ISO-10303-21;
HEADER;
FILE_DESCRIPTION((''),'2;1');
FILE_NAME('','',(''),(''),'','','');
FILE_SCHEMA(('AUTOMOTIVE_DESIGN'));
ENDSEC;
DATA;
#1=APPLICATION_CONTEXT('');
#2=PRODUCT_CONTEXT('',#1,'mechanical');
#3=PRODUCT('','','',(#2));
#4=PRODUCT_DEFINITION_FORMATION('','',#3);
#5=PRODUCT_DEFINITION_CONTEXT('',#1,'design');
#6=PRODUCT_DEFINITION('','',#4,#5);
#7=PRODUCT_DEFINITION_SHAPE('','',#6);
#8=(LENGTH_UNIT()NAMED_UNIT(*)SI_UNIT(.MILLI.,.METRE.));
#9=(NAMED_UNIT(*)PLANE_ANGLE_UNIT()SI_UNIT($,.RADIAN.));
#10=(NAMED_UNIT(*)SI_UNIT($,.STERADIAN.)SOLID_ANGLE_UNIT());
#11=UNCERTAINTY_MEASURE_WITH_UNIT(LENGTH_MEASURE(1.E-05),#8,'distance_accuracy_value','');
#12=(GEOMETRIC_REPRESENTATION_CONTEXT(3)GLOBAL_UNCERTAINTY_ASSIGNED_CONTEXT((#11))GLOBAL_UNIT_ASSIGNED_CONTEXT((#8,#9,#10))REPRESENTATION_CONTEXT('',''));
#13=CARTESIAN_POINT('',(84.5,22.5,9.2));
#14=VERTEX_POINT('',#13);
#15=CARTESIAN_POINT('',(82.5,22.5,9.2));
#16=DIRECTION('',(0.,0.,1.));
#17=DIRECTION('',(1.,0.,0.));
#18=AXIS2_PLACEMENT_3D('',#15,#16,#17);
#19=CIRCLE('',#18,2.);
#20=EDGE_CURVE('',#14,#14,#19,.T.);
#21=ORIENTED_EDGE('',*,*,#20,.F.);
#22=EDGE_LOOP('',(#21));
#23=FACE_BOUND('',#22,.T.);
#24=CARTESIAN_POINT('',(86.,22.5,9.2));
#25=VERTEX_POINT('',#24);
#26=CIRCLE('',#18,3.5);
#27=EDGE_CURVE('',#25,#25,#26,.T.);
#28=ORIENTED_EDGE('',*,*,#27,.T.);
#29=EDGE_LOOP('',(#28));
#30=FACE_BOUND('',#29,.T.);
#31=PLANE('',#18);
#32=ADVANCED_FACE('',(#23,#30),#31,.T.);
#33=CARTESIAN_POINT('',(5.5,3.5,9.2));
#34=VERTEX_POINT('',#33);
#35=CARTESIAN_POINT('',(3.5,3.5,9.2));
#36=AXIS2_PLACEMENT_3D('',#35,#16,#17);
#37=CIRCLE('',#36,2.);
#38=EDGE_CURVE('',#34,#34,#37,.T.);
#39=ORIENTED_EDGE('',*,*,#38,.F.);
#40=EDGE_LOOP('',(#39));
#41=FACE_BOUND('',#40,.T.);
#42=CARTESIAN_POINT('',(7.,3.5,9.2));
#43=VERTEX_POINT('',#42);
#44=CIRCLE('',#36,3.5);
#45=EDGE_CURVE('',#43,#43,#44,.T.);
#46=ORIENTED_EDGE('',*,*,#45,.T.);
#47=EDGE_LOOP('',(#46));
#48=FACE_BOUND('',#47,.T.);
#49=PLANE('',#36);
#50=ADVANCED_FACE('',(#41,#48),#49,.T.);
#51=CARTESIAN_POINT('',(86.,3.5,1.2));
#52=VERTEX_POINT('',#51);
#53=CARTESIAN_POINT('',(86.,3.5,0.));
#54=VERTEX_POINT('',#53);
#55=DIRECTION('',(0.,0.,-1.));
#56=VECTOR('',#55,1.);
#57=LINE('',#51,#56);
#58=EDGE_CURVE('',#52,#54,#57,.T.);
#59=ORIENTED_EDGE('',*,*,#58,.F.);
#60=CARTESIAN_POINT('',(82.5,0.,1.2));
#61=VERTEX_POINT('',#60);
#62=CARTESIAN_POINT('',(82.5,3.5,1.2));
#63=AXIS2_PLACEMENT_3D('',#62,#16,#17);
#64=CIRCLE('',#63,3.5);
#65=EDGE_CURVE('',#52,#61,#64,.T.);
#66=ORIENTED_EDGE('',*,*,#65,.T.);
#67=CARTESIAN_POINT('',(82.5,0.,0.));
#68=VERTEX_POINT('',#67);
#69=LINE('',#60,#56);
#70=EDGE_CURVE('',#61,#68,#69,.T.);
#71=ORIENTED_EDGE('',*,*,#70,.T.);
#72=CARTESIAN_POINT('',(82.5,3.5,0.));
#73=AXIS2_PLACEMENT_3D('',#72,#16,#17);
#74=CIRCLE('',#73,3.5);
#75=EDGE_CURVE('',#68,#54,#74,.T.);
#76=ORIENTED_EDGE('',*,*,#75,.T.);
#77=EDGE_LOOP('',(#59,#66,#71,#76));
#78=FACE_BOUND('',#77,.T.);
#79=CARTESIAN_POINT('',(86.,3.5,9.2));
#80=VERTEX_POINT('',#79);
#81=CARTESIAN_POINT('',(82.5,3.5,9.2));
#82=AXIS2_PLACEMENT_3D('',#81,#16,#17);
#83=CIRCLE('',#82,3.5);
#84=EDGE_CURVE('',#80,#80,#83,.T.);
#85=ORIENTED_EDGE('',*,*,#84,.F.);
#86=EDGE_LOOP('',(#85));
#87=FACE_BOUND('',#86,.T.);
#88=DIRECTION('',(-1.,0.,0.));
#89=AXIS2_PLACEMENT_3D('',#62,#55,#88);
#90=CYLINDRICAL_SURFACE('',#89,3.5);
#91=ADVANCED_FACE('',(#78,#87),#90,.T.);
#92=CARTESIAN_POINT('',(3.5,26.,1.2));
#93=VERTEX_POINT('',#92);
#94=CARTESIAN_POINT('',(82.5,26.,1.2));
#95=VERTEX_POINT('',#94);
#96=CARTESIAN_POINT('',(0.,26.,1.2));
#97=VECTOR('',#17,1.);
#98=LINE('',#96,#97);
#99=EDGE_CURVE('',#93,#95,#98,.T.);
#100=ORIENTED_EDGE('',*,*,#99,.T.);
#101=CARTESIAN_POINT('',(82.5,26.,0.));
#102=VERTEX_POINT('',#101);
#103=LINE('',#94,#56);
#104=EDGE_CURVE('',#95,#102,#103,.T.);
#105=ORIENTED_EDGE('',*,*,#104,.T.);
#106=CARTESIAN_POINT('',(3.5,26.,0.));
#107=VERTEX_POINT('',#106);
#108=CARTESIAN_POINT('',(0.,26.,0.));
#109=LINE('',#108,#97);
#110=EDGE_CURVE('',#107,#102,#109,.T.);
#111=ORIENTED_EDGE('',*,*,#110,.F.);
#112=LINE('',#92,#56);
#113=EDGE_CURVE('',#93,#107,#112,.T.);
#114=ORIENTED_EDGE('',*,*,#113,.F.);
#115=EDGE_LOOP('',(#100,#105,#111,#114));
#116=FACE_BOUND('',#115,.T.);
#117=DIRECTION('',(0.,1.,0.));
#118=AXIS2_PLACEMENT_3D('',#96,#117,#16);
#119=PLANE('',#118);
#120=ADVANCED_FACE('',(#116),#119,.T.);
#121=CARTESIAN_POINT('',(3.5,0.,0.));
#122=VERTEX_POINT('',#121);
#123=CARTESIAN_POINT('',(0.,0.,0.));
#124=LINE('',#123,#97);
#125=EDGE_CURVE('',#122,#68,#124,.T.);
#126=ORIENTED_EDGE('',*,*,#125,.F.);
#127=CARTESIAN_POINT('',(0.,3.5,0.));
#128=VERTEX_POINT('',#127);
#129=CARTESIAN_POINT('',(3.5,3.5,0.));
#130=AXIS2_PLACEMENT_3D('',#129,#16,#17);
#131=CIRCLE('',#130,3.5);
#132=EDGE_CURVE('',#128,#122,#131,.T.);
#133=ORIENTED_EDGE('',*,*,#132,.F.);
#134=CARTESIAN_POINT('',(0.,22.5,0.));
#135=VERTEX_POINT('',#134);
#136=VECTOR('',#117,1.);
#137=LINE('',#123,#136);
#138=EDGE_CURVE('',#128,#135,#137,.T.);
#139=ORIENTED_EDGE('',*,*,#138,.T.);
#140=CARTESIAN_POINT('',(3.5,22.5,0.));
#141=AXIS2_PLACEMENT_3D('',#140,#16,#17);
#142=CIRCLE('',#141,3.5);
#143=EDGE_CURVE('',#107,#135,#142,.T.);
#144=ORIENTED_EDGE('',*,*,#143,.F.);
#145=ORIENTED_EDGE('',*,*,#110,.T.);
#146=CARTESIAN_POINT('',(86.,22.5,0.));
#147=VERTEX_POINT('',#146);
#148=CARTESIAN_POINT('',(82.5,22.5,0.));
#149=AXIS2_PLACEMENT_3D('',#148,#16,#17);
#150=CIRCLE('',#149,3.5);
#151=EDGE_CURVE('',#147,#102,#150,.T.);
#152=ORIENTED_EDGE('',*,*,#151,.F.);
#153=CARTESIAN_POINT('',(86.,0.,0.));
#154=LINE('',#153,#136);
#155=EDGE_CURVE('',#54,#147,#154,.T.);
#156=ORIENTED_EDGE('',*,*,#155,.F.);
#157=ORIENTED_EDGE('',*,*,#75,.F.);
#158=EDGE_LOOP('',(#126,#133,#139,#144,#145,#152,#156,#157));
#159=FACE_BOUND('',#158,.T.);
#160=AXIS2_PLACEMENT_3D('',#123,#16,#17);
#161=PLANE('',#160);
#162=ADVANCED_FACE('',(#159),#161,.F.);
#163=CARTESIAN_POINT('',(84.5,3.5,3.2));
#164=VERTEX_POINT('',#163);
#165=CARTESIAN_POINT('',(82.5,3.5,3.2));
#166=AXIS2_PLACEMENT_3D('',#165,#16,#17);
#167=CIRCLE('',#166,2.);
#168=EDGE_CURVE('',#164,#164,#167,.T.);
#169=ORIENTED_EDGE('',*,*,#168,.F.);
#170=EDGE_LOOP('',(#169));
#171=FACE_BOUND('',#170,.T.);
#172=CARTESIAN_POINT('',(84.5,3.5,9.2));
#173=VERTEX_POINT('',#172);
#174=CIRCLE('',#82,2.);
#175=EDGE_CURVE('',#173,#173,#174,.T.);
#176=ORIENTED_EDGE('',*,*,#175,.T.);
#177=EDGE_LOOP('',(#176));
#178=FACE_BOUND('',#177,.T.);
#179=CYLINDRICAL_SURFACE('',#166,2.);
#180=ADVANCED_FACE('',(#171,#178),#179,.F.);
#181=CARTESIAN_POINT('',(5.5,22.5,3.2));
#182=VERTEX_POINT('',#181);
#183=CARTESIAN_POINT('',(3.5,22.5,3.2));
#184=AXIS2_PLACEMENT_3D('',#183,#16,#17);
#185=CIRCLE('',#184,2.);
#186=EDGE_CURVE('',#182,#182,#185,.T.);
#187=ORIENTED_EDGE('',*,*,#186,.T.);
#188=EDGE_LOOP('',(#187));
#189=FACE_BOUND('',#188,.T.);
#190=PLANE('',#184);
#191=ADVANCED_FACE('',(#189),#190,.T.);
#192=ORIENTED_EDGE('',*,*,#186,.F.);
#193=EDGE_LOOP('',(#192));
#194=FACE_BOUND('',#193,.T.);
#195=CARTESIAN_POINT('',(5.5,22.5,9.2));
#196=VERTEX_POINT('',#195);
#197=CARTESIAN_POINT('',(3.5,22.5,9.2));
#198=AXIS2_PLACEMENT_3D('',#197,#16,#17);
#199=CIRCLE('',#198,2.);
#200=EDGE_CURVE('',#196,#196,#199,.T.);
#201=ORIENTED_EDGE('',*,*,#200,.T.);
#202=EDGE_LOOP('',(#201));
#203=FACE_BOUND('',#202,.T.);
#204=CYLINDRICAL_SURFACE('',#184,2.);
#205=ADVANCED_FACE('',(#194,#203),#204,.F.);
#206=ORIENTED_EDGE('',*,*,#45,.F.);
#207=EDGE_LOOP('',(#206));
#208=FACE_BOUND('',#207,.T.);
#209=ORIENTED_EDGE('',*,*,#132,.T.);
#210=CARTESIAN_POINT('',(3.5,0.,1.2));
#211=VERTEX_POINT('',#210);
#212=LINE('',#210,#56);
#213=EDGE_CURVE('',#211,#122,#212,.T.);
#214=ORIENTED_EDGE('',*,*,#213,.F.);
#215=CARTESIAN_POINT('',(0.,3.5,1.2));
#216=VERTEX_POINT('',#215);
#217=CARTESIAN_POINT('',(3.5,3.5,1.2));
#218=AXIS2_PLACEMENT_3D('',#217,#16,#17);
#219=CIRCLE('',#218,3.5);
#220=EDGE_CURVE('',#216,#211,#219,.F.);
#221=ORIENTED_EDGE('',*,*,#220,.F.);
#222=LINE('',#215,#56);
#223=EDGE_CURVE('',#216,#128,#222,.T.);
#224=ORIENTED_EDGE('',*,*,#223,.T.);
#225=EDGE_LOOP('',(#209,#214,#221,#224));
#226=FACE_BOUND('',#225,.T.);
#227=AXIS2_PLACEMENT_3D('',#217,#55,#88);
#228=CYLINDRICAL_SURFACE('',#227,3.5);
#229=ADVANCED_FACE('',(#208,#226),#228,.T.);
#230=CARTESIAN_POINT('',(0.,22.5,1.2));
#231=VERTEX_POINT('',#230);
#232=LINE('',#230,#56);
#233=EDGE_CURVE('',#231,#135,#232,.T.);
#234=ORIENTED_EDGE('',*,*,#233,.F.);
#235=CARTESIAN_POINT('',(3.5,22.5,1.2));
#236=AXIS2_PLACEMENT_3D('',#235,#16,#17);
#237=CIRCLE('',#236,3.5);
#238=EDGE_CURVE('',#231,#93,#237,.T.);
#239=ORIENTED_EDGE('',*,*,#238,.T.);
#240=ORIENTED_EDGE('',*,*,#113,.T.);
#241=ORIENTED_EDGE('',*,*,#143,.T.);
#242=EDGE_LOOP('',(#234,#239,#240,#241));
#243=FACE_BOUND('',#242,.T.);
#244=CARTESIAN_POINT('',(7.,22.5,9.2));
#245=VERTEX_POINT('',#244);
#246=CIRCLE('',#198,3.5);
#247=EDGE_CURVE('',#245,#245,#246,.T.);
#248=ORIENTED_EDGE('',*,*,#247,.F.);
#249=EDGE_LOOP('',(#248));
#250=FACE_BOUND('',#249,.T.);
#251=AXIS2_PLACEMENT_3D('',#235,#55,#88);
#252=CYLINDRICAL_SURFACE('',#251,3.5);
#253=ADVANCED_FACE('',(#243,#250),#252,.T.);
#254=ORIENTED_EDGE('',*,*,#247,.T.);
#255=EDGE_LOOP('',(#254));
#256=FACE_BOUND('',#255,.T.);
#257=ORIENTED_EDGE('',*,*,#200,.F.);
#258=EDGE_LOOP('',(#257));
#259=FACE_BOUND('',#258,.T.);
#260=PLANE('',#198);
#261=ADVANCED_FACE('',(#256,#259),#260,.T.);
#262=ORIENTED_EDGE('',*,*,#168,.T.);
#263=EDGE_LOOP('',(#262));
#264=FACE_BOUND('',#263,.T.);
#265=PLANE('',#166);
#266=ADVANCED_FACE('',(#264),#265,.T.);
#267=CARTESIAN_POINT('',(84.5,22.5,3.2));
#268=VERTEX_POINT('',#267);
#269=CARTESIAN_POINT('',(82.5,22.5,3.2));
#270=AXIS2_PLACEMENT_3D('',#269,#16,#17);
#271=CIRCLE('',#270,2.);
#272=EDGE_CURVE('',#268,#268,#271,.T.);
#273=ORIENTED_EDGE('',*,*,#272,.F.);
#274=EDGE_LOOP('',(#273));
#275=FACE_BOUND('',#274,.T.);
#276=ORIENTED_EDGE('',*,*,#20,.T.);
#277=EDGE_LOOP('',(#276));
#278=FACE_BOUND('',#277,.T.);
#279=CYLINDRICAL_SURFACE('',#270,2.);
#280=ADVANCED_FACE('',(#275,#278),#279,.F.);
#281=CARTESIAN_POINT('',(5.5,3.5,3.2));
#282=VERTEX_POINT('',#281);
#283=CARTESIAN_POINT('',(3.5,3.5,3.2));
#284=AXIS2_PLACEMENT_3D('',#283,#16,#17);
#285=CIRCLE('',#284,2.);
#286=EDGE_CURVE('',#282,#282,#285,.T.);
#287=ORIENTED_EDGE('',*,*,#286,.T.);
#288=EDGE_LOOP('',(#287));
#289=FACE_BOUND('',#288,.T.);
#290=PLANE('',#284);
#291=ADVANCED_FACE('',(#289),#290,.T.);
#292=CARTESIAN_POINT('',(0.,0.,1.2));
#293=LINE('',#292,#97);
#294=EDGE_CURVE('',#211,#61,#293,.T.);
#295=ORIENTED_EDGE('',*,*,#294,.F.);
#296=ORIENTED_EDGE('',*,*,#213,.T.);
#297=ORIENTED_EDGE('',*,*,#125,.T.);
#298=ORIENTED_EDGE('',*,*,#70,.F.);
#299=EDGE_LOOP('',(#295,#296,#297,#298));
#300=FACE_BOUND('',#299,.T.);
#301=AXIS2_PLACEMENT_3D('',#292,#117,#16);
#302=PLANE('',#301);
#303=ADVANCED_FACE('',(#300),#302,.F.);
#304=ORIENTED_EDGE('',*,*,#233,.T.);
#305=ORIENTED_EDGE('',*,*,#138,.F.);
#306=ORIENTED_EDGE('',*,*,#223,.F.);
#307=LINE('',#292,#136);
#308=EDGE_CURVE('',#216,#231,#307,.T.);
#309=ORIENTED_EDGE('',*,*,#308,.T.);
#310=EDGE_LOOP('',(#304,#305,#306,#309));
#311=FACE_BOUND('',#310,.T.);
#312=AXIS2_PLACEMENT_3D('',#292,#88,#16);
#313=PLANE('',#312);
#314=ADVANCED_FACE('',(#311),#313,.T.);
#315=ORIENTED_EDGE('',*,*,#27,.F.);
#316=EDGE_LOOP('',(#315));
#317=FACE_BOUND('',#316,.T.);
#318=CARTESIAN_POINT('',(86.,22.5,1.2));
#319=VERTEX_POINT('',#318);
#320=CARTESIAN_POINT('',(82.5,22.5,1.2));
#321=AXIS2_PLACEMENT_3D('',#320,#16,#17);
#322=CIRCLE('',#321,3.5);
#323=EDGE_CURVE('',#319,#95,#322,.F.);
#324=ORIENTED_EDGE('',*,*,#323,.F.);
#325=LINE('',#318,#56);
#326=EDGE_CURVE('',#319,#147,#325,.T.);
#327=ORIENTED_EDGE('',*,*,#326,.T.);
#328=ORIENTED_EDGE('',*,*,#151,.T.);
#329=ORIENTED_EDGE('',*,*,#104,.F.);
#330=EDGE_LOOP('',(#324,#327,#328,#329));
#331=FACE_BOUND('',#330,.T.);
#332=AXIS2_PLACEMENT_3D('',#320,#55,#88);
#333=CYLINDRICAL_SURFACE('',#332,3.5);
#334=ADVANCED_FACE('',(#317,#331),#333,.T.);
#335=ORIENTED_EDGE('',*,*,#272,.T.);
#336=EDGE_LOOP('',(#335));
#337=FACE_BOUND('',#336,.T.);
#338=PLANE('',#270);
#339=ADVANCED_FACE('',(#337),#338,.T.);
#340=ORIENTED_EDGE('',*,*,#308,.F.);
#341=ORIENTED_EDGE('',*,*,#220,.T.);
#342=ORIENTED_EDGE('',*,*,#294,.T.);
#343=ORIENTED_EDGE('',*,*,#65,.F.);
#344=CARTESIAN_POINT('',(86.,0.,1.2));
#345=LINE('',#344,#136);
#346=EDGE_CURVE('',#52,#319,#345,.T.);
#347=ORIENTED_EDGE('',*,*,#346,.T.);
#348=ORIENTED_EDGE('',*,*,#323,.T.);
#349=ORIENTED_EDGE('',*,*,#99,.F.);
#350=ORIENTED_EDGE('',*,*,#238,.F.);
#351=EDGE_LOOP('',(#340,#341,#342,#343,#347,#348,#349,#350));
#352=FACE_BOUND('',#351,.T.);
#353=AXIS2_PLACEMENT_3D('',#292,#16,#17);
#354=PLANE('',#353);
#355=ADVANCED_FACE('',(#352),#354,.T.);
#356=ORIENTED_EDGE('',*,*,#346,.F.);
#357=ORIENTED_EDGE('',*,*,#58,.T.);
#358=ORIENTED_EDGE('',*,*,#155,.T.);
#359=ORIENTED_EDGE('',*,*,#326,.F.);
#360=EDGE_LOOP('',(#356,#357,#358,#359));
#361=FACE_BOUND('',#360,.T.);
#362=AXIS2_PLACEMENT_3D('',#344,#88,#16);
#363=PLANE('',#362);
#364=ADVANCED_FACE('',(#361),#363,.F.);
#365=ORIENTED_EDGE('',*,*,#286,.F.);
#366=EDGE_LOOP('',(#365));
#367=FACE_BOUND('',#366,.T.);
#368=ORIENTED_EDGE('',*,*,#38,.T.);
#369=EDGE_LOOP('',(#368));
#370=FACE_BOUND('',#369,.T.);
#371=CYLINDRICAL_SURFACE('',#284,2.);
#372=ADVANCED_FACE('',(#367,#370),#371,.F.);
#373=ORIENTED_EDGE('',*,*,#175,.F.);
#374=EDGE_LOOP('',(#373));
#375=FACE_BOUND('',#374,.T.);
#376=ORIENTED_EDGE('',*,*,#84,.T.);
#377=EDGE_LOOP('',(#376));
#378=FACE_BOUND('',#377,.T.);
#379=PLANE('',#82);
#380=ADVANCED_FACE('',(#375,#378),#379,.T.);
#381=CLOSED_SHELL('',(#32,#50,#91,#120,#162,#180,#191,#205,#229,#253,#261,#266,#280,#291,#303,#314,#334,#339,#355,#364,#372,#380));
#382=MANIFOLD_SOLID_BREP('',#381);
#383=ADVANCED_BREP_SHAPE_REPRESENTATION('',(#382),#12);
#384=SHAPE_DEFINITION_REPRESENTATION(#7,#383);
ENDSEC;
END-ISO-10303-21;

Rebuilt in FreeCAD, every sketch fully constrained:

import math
import FreeCAD as App
import Part
import Sketcher

V = App.Vector

doc = App.newDocument("Part")
params = doc.addObject("Spreadsheet::Sheet", "Params")
for row, (alias, value) in enumerate([
    ("sketch1_radius", "3.5 mm"),
    ("sketch1_width", "79 mm"),
    ("sketch1_height", "19 mm"),
    ("pad1_length", "1.2 mm"),
    ("sketch2_diameter", "7 mm"),
    ("pad2_length", "8 mm"),
    ("sketch3_diameter", "4 mm"),
    ("pocket1_length", "6 mm"),
], start=1):
    params.set(f"A{row}", alias)
    params.set(f"B{row}", "=" + value)
    params.setAlias(f"B{row}", alias)

body = doc.addObject("PartDesign::Body", "Body")

sketch1 = body.newObject("Sketcher::SketchObject", "Sketch")
sketch1.AttachmentSupport = (doc.getObject("XY_Plane"), [""])
sketch1.MapMode = "FlatFace"
sketch1.addGeometry(Part.LineSegment(V(0, 22.5, 0), V(0, 3.5, 0)), False)
sketch1.addGeometry(Part.ArcOfCircle(Part.Circle(V(3.5, 3.5, 0), V(0, 0, 1), 3.5), math.radians(-180), math.radians(-90)), False)
sketch1.addGeometry(Part.LineSegment(V(3.5, 0, 0), V(82.5, 0, 0)), False)
sketch1.addGeometry(Part.ArcOfCircle(Part.Circle(V(82.5, 3.5, 0), V(0, 0, 1), 3.5), math.radians(-90), math.radians(0)), False)
sketch1.addGeometry(Part.LineSegment(V(86, 3.5, 0), V(86, 22.5, 0)), False)
sketch1.addGeometry(Part.ArcOfCircle(Part.Circle(V(82.5, 22.5, 0), V(0, 0, 1), 3.5), math.radians(0), math.radians(90)), False)
sketch1.addGeometry(Part.LineSegment(V(82.5, 26, 0), V(3.5, 26, 0)), False)
sketch1.addGeometry(Part.ArcOfCircle(Part.Circle(V(3.5, 22.5, 0), V(0, 0, 1), 3.5), math.radians(90), math.radians(180)), False)
sketch1.addConstraint(Sketcher.Constraint("Tangent", 0, 2, 1, 1))
sketch1.addConstraint(Sketcher.Constraint("Tangent", 1, 2, 2, 1))
sketch1.addConstraint(Sketcher.Constraint("Tangent", 2, 2, 3, 1))
sketch1.addConstraint(Sketcher.Constraint("Tangent", 3, 2, 4, 1))
sketch1.addConstraint(Sketcher.Constraint("Tangent", 4, 2, 5, 1))
sketch1.addConstraint(Sketcher.Constraint("Tangent", 5, 2, 6, 1))
sketch1.addConstraint(Sketcher.Constraint("Tangent", 6, 2, 7, 1))
sketch1.addConstraint(Sketcher.Constraint("Tangent", 7, 2, 0, 1))
sketch1.addConstraint(Sketcher.Constraint("Vertical", 0))
sketch1.addConstraint(Sketcher.Constraint("Horizontal", 2))
sketch1.addConstraint(Sketcher.Constraint("Vertical", 4))
sketch1.addConstraint(Sketcher.Constraint("Horizontal", 6))
sketch1.addConstraint(Sketcher.Constraint("Equal", 1, 3))
sketch1.addConstraint(Sketcher.Constraint("Equal", 3, 5))
sketch1.addConstraint(Sketcher.Constraint("Equal", 5, 7))
sketch1.addConstraint(Sketcher.Constraint("PointOnObject", 0, 2, -2))
sketch1.addConstraint(Sketcher.Constraint("PointOnObject", 1, 2, -1))
sketch1.addConstraint(Sketcher.Constraint("Radius", 1, 3.5))
sketch1.addConstraint(Sketcher.Constraint("DistanceX", 2, 1, 2, 2, 79.0))
sketch1.addConstraint(Sketcher.Constraint("DistanceY", 0, 2, 0, 1, 19.0))
sketch1.setExpression("Constraints[17]", "Params.sketch1_radius")
sketch1.setExpression("Constraints[18]", "Params.sketch1_width")
sketch1.setExpression("Constraints[19]", "Params.sketch1_height")
pad1 = body.newObject("PartDesign::Pad", "Pad")
pad1.Profile = sketch1
pad1.setExpression("Length", "Params.pad1_length")

sketch2 = body.newObject("Sketcher::SketchObject", "Sketch001")
sketch2.AttachmentSupport = (doc.getObject("XY_Plane"), [""])
sketch2.MapMode = "FlatFace"
sketch2.AttachmentOffset = App.Placement(V(0, 0, 1.2), App.Rotation())
sketch2.addGeometry(Part.Circle(V(82.5, 22.5, 0), V(0, 0, 1), 3.5), False)
sketch2.addGeometry(Part.Circle(V(82.5, 3.5, 0), V(0, 0, 1), 3.5), False)
sketch2.addGeometry(Part.Circle(V(3.5, 22.5, 0), V(0, 0, 1), 3.5), False)
sketch2.addGeometry(Part.Circle(V(3.5, 3.5, 0), V(0, 0, 1), 3.5), False)
sketch2.addConstraint(Sketcher.Constraint("Equal", 0, 1))
sketch2.addConstraint(Sketcher.Constraint("Equal", 1, 2))
sketch2.addConstraint(Sketcher.Constraint("Equal", 2, 3))
sketch2.addConstraint(Sketcher.Constraint("Horizontal", 0, 3, 2, 3))
sketch2.addConstraint(Sketcher.Constraint("Horizontal", 1, 3, 3, 3))
sketch2.addConstraint(Sketcher.Constraint("Vertical", 0, 3, 1, 3))
sketch2.addConstraint(Sketcher.Constraint("Vertical", 2, 3, 3, 3))
sketch2.addConstraint(Sketcher.Constraint("Diameter", 0, 7.0))
sketch2.addConstraint(Sketcher.Constraint("DistanceY", 1, 3, 0, 3, 19.0))
sketch2.addConstraint(Sketcher.Constraint("DistanceX", 2, 3, 0, 3, 79.0))
sketch2.addConstraint(Sketcher.Constraint("DistanceX", -1, 1, 0, 3, 82.5))
sketch2.addConstraint(Sketcher.Constraint("DistanceY", -1, 1, 0, 3, 22.5))
sketch2.setExpression("Constraints[7]", "Params.sketch2_diameter")
pad2 = body.newObject("PartDesign::Pad", "Pad001")
pad2.Profile = sketch2
pad2.setExpression("Length", "Params.pad2_length")

sketch3 = body.newObject("Sketcher::SketchObject", "Sketch002")
sketch3.AttachmentSupport = (doc.getObject("XY_Plane"), [""])
sketch3.MapMode = "FlatFace"
sketch3.AttachmentOffset = App.Placement(V(0, 0, 9.2), App.Rotation())
sketch3.addGeometry(Part.Circle(V(3.5, 22.5, 0), V(0, 0, 1), 2), False)
sketch3.addGeometry(Part.Circle(V(3.5, 3.5, 0), V(0, 0, 1), 2), False)
sketch3.addGeometry(Part.Circle(V(82.5, 22.5, 0), V(0, 0, 1), 2), False)
sketch3.addGeometry(Part.Circle(V(82.5, 3.5, 0), V(0, 0, 1), 2), False)
sketch3.addConstraint(Sketcher.Constraint("Equal", 0, 1))
sketch3.addConstraint(Sketcher.Constraint("Equal", 1, 2))
sketch3.addConstraint(Sketcher.Constraint("Equal", 2, 3))
sketch3.addConstraint(Sketcher.Constraint("Horizontal", 0, 3, 2, 3))
sketch3.addConstraint(Sketcher.Constraint("Horizontal", 1, 3, 3, 3))
sketch3.addConstraint(Sketcher.Constraint("Vertical", 0, 3, 1, 3))
sketch3.addConstraint(Sketcher.Constraint("Vertical", 2, 3, 3, 3))
sketch3.addConstraint(Sketcher.Constraint("Diameter", 0, 4.0))
sketch3.addConstraint(Sketcher.Constraint("DistanceY", 1, 3, 0, 3, 19.0))
sketch3.addConstraint(Sketcher.Constraint("DistanceX", 0, 3, 2, 3, 79.0))
sketch3.addConstraint(Sketcher.Constraint("DistanceX", -1, 1, 0, 3, 3.5))
sketch3.addConstraint(Sketcher.Constraint("DistanceY", -1, 1, 0, 3, 22.5))
sketch3.setExpression("Constraints[7]", "Params.sketch3_diameter")
pocket1 = body.newObject("PartDesign::Pocket", "Pocket")
pocket1.Profile = sketch3
pocket1.setExpression("Length", "Params.pocket1_length")

doc.recompute()
